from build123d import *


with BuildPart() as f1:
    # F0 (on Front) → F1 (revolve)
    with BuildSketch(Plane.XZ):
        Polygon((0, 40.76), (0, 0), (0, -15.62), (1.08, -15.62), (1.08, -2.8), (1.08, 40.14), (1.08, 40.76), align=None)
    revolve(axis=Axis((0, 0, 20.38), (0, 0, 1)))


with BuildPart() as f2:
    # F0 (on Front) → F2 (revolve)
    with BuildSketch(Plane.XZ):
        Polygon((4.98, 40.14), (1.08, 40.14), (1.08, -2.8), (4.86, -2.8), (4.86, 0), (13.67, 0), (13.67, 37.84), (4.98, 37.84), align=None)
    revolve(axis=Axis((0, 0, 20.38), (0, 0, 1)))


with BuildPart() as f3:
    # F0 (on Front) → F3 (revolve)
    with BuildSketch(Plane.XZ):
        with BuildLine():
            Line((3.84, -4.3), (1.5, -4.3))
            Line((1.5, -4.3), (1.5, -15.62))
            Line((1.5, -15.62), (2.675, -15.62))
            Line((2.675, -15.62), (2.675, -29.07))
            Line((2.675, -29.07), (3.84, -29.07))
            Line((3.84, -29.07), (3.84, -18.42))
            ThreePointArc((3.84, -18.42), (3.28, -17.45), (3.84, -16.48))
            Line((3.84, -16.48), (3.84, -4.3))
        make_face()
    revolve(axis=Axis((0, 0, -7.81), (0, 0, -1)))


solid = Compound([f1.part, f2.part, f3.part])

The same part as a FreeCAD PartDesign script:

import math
import FreeCAD as App
import Part
import Sketcher

V = App.Vector
Q = App.Units.Quantity


def add_polygon(sketch, points):
    """Adds a closed chain of lines whose ends are joined by coincident constraints."""
    first, n = sketch.GeometryCount, len(points)
    for a, b in zip(points, points[1:] + points[:1]):
        sketch.addGeometry(Part.LineSegment(App.Vector(*a, 0), App.Vector(*b, 0)), False)
    for i in range(n):
        sketch.addConstraint(Sketcher.Constraint("Coincident", first + i, 2, first + (i + 1) % n, 1))

doc = App.newDocument("Part")
params = doc.addObject("Spreadsheet::Sheet", "Params")
for row, (alias, value) in enumerate([
    ("sketch1_width", "1.08 mm"),
    ("sketch1_height", "56.38 mm"),
    ("revolution_angle", "360 deg"),
    ("sketch2_width", "3.9 mm"),
    ("sketch2_height", "2.8 mm"),
    ("sketch2_height2", "2.3 mm"),
    ("sketch2_width2", "3.78 mm"),
    ("sketch2_width3", "8.81 mm"),
    ("revolution2_angle", "360 deg"),
    ("sketch3_width", "2.34 mm"),
    ("sketch3_height", "11.32 mm"),
    ("sketch3_height2", "13.45 mm"),
    ("sketch3_height3", "10.65 mm"),
    ("sketch3_height4", "12.18 mm"),
    ("revolution3_angle", "360 deg"),
], start=1):
    params.set(f"A{row}", alias)
    params.set(f"B{row}", "=" + value)
    params.setAlias(f"B{row}", alias)

body = doc.addObject("PartDesign::Body", "Body")

# Sketch on XZ plane
sketch1 = doc.addObject("Sketcher::SketchObject", "Sketch")
body.addObject(sketch1)
sketch1.AttachmentSupport = (doc.XZ_Plane, [""])
sketch1.MapMode = "FlatFace"
add_polygon(sketch1, [(0, 40.76), (0, -15.62), (1.08, -15.62), (1.08, 40.76)])  # lines 0-3
sketch1.addConstraint(Sketcher.Constraint("Vertical", 0))
sketch1.addConstraint(Sketcher.Constraint("Horizontal", 1))
sketch1.addConstraint(Sketcher.Constraint("Vertical", 2))
sketch1.addConstraint(Sketcher.Constraint("Horizontal", 3))
sketch1.addConstraint(Sketcher.Constraint("PointOnObject", 0, 2, -2))
sketch1.addConstraint(Sketcher.Constraint("DistanceX", 1, 1, 1, 2, Q("1.08 mm")))
sketch1.addConstraint(Sketcher.Constraint("DistanceY", 0, 2, 0, 1, Q("56.38 mm")))
sketch1.addConstraint(Sketcher.Constraint("DistanceY", 0, 2, -1, 1, Q("15.62 mm")))
sketch1.setExpression("Constraints[9]", "Params.sketch1_width")
sketch1.setExpression("Constraints[10]", "Params.sketch1_height")
revolution = doc.addObject("PartDesign::Revolution", "Revolution")
body.addObject(revolution)
revolution.Profile = sketch1
revolution.ReferenceAxis = (sketch1, ["V_Axis"])
revolution.setExpression("Angle", "Params.revolution_angle")
body2 = doc.addObject("PartDesign::Body", "Body001")

# Sketch on XZ plane
sketch2 = doc.addObject("Sketcher::SketchObject", "Sketch001")
body2.addObject(sketch2)
sketch2.AttachmentSupport = (doc.getObject("XZ_Plane001"), [""])
sketch2.MapMode = "FlatFace"
add_polygon(sketch2, [(4.98, 40.14), (1.08, 40.14), (1.08, -2.8), (4.86, -2.8), (4.86, 0), (13.67, 0), (13.67, 37.84), (4.98, 37.84)])  # lines 0-7
sketch2.addConstraint(Sketcher.Constraint("Horizontal", 0))
sketch2.addConstraint(Sketcher.Constraint("Vertical", 1))
sketch2.addConstraint(Sketcher.Constraint("Horizontal", 2))
sketch2.addConstraint(Sketcher.Constraint("Vertical", 3))
sketch2.addConstraint(Sketcher.Constraint("Horizontal", 4))
sketch2.addConstraint(Sketcher.Constraint("Vertical", 5))
sketch2.addConstraint(Sketcher.Constraint("Horizontal", 6))
sketch2.addConstraint(Sketcher.Constraint("Vertical", 7))
sketch2.addConstraint(Sketcher.Constraint("PointOnObject", 3, 2, -1))
sketch2.addConstraint(Sketcher.Constraint("DistanceX", 0, 2, 0, 1, Q("3.9 mm")))
sketch2.addConstraint(Sketcher.Constraint("DistanceY", 3, 1, 3, 2, Q("2.8 mm")))
sketch2.addConstraint(Sketcher.Constraint("DistanceY", 7, 1, 7, 2, Q("2.3 mm")))
sketch2.addConstraint(Sketcher.Constraint("DistanceX", 2, 1, 2, 2, Q("3.78 mm")))
sketch2.addConstraint(Sketcher.Constraint("DistanceX", 4, 1, 4, 2, Q("8.81 mm")))
sketch2.addConstraint(Sketcher.Constraint("DistanceY", 1, 2, 1, 1, Q("42.94 mm")))
sketch2.addConstraint(Sketcher.Constraint("DistanceX", -1, 1, 0, 2, Q("1.08 mm")))
sketch2.setExpression("Constraints[17]", "Params.sketch2_width")
sketch2.setExpression("Constraints[18]", "Params.sketch2_height")
sketch2.setExpression("Constraints[19]", "Params.sketch2_height2")
sketch2.setExpression("Constraints[20]", "Params.sketch2_width2")
sketch2.setExpression("Constraints[21]", "Params.sketch2_width3")
revolution2 = doc.addObject("PartDesign::Revolution", "Revolution001")
body2.addObject(revolution2)
revolution2.Profile = sketch2
revolution2.ReferenceAxis = (sketch2, ["V_Axis"])
revolution2.setExpression("Angle", "Params.revolution2_angle")
body3 = doc.addObject("PartDesign::Body", "Body002")

# Sketch on XZ plane
sketch3 = doc.addObject("Sketcher::SketchObject", "Sketch002")
body3.addObject(sketch3)
sketch3.AttachmentSupport = (doc.getObject("XZ_Plane002"), [""])
sketch3.MapMode = "FlatFace"
sketch3.addGeometry(Part.LineSegment(V(3.84, -4.3, 0), V(1.5, -4.3, 0)), False)
sketch3.addGeometry(Part.LineSegment(V(1.5, -4.3, 0), V(1.5, -15.62, 0)), False)
sketch3.addGeometry(Part.LineSegment(V(1.5, -15.62, 0), V(2.675, -15.62, 0)), False)
sketch3.addGeometry(Part.LineSegment(V(2.675, -15.62, 0), V(2.675, -29.07, 0)), False)
sketch3.addGeometry(Part.LineSegment(V(2.675, -29.07, 0), V(3.84, -29.07, 0)), False)
sketch3.addGeometry(Part.LineSegment(V(3.84, -29.07, 0), V(3.84, -18.42, 0)), False)
sketch3.addGeometry(Part.ArcOfCircle(Part.Circle(V(4.400089, -17.45, 0), V(0, 0, 1), 1.120089), math.radians(120.002637), math.radians(239.997363)), False)
sketch3.addGeometry(Part.LineSegment(V(3.84, -16.48, 0), V(3.84, -4.3, 0)), False)
sketch3.addConstraint(Sketcher.Constraint("Coincident", 0, 2, 1, 1))
sketch3.addConstraint(Sketcher.Constraint("Coincident", 1, 2, 2, 1))
sketch3.addConstraint(Sketcher.Constraint("Coincident", 2, 2, 3, 1))
sketch3.addConstraint(Sketcher.Constraint("Coincident", 3, 2, 4, 1))
sketch3.addConstraint(Sketcher.Constraint("Coincident", 4, 2, 5, 1))
sketch3.addConstraint(Sketcher.Constraint("Coincident", 5, 2, 6, 2))
sketch3.addConstraint(Sketcher.Constraint("Coincident", 6, 1, 7, 1))
sketch3.addConstraint(Sketcher.Constraint("Coincident", 7, 2, 0, 1))
sketch3.addConstraint(Sketcher.Constraint("Horizontal", 0))
sketch3.addConstraint(Sketcher.Constraint("Vertical", 1))
sketch3.addConstraint(Sketcher.Constraint("Horizontal", 2))
sketch3.addConstraint(Sketcher.Constraint("Vertical", 3))
sketch3.addConstraint(Sketcher.Constraint("Horizontal", 4))
sketch3.addConstraint(Sketcher.Constraint("Vertical", 5))
sketch3.addConstraint(Sketcher.Constraint("Vertical", 7))
sketch3.addConstraint(Sketcher.Constraint("Vertical", 5, 2, 6, 1))
sketch3.addConstraint(Sketcher.Constraint("DistanceX", 0, 2, 0, 1, Q("2.34 mm")))
sketch3.addConstraint(Sketcher.Constraint("DistanceY", 1, 2, 1, 1, Q("11.32 mm")))
sketch3.addConstraint(Sketcher.Constraint("DistanceY", 3, 2, 3, 1, Q("13.45 mm")))
sketch3.addConstraint(Sketcher.Constraint("DistanceY", 5, 1, 5, 2, Q("10.65 mm")))
sketch3.addConstraint(Sketcher.Constraint("DistanceY", 7, 1, 7, 2, Q("12.18 mm")))
sketch3.addConstraint(Sketcher.Constraint("DistanceX", -1, 1, 0, 2, Q("1.5 mm")))
sketch3.addConstraint(Sketcher.Constraint("DistanceY", 0, 2, -1, 1, Q("4.3 mm")))
sketch3.addConstraint(Sketcher.Constraint("DistanceX", 2, 1, 2, 2, Q("1.175 mm")))
sketch3.addConstraint(Sketcher.Constraint("Radius", 6, Q("1.120089 mm")))
sketch3.setExpression("Constraints[16]", "Params.sketch3_width")
sketch3.setExpression("Constraints[17]", "Params.sketch3_height")
sketch3.setExpression("Constraints[18]", "Params.sketch3_height2")
sketch3.setExpression("Constraints[19]", "Params.sketch3_height3")
sketch3.setExpression("Constraints[20]", "Params.sketch3_height4")
revolution3 = doc.addObject("PartDesign::Revolution", "Revolution002")
body3.addObject(revolution3)
revolution3.Profile = sketch3
revolution3.ReferenceAxis = (sketch3, ["V_Axis"])
revolution3.setExpression("Angle", "Params.revolution3_angle")

doc.recompute()
